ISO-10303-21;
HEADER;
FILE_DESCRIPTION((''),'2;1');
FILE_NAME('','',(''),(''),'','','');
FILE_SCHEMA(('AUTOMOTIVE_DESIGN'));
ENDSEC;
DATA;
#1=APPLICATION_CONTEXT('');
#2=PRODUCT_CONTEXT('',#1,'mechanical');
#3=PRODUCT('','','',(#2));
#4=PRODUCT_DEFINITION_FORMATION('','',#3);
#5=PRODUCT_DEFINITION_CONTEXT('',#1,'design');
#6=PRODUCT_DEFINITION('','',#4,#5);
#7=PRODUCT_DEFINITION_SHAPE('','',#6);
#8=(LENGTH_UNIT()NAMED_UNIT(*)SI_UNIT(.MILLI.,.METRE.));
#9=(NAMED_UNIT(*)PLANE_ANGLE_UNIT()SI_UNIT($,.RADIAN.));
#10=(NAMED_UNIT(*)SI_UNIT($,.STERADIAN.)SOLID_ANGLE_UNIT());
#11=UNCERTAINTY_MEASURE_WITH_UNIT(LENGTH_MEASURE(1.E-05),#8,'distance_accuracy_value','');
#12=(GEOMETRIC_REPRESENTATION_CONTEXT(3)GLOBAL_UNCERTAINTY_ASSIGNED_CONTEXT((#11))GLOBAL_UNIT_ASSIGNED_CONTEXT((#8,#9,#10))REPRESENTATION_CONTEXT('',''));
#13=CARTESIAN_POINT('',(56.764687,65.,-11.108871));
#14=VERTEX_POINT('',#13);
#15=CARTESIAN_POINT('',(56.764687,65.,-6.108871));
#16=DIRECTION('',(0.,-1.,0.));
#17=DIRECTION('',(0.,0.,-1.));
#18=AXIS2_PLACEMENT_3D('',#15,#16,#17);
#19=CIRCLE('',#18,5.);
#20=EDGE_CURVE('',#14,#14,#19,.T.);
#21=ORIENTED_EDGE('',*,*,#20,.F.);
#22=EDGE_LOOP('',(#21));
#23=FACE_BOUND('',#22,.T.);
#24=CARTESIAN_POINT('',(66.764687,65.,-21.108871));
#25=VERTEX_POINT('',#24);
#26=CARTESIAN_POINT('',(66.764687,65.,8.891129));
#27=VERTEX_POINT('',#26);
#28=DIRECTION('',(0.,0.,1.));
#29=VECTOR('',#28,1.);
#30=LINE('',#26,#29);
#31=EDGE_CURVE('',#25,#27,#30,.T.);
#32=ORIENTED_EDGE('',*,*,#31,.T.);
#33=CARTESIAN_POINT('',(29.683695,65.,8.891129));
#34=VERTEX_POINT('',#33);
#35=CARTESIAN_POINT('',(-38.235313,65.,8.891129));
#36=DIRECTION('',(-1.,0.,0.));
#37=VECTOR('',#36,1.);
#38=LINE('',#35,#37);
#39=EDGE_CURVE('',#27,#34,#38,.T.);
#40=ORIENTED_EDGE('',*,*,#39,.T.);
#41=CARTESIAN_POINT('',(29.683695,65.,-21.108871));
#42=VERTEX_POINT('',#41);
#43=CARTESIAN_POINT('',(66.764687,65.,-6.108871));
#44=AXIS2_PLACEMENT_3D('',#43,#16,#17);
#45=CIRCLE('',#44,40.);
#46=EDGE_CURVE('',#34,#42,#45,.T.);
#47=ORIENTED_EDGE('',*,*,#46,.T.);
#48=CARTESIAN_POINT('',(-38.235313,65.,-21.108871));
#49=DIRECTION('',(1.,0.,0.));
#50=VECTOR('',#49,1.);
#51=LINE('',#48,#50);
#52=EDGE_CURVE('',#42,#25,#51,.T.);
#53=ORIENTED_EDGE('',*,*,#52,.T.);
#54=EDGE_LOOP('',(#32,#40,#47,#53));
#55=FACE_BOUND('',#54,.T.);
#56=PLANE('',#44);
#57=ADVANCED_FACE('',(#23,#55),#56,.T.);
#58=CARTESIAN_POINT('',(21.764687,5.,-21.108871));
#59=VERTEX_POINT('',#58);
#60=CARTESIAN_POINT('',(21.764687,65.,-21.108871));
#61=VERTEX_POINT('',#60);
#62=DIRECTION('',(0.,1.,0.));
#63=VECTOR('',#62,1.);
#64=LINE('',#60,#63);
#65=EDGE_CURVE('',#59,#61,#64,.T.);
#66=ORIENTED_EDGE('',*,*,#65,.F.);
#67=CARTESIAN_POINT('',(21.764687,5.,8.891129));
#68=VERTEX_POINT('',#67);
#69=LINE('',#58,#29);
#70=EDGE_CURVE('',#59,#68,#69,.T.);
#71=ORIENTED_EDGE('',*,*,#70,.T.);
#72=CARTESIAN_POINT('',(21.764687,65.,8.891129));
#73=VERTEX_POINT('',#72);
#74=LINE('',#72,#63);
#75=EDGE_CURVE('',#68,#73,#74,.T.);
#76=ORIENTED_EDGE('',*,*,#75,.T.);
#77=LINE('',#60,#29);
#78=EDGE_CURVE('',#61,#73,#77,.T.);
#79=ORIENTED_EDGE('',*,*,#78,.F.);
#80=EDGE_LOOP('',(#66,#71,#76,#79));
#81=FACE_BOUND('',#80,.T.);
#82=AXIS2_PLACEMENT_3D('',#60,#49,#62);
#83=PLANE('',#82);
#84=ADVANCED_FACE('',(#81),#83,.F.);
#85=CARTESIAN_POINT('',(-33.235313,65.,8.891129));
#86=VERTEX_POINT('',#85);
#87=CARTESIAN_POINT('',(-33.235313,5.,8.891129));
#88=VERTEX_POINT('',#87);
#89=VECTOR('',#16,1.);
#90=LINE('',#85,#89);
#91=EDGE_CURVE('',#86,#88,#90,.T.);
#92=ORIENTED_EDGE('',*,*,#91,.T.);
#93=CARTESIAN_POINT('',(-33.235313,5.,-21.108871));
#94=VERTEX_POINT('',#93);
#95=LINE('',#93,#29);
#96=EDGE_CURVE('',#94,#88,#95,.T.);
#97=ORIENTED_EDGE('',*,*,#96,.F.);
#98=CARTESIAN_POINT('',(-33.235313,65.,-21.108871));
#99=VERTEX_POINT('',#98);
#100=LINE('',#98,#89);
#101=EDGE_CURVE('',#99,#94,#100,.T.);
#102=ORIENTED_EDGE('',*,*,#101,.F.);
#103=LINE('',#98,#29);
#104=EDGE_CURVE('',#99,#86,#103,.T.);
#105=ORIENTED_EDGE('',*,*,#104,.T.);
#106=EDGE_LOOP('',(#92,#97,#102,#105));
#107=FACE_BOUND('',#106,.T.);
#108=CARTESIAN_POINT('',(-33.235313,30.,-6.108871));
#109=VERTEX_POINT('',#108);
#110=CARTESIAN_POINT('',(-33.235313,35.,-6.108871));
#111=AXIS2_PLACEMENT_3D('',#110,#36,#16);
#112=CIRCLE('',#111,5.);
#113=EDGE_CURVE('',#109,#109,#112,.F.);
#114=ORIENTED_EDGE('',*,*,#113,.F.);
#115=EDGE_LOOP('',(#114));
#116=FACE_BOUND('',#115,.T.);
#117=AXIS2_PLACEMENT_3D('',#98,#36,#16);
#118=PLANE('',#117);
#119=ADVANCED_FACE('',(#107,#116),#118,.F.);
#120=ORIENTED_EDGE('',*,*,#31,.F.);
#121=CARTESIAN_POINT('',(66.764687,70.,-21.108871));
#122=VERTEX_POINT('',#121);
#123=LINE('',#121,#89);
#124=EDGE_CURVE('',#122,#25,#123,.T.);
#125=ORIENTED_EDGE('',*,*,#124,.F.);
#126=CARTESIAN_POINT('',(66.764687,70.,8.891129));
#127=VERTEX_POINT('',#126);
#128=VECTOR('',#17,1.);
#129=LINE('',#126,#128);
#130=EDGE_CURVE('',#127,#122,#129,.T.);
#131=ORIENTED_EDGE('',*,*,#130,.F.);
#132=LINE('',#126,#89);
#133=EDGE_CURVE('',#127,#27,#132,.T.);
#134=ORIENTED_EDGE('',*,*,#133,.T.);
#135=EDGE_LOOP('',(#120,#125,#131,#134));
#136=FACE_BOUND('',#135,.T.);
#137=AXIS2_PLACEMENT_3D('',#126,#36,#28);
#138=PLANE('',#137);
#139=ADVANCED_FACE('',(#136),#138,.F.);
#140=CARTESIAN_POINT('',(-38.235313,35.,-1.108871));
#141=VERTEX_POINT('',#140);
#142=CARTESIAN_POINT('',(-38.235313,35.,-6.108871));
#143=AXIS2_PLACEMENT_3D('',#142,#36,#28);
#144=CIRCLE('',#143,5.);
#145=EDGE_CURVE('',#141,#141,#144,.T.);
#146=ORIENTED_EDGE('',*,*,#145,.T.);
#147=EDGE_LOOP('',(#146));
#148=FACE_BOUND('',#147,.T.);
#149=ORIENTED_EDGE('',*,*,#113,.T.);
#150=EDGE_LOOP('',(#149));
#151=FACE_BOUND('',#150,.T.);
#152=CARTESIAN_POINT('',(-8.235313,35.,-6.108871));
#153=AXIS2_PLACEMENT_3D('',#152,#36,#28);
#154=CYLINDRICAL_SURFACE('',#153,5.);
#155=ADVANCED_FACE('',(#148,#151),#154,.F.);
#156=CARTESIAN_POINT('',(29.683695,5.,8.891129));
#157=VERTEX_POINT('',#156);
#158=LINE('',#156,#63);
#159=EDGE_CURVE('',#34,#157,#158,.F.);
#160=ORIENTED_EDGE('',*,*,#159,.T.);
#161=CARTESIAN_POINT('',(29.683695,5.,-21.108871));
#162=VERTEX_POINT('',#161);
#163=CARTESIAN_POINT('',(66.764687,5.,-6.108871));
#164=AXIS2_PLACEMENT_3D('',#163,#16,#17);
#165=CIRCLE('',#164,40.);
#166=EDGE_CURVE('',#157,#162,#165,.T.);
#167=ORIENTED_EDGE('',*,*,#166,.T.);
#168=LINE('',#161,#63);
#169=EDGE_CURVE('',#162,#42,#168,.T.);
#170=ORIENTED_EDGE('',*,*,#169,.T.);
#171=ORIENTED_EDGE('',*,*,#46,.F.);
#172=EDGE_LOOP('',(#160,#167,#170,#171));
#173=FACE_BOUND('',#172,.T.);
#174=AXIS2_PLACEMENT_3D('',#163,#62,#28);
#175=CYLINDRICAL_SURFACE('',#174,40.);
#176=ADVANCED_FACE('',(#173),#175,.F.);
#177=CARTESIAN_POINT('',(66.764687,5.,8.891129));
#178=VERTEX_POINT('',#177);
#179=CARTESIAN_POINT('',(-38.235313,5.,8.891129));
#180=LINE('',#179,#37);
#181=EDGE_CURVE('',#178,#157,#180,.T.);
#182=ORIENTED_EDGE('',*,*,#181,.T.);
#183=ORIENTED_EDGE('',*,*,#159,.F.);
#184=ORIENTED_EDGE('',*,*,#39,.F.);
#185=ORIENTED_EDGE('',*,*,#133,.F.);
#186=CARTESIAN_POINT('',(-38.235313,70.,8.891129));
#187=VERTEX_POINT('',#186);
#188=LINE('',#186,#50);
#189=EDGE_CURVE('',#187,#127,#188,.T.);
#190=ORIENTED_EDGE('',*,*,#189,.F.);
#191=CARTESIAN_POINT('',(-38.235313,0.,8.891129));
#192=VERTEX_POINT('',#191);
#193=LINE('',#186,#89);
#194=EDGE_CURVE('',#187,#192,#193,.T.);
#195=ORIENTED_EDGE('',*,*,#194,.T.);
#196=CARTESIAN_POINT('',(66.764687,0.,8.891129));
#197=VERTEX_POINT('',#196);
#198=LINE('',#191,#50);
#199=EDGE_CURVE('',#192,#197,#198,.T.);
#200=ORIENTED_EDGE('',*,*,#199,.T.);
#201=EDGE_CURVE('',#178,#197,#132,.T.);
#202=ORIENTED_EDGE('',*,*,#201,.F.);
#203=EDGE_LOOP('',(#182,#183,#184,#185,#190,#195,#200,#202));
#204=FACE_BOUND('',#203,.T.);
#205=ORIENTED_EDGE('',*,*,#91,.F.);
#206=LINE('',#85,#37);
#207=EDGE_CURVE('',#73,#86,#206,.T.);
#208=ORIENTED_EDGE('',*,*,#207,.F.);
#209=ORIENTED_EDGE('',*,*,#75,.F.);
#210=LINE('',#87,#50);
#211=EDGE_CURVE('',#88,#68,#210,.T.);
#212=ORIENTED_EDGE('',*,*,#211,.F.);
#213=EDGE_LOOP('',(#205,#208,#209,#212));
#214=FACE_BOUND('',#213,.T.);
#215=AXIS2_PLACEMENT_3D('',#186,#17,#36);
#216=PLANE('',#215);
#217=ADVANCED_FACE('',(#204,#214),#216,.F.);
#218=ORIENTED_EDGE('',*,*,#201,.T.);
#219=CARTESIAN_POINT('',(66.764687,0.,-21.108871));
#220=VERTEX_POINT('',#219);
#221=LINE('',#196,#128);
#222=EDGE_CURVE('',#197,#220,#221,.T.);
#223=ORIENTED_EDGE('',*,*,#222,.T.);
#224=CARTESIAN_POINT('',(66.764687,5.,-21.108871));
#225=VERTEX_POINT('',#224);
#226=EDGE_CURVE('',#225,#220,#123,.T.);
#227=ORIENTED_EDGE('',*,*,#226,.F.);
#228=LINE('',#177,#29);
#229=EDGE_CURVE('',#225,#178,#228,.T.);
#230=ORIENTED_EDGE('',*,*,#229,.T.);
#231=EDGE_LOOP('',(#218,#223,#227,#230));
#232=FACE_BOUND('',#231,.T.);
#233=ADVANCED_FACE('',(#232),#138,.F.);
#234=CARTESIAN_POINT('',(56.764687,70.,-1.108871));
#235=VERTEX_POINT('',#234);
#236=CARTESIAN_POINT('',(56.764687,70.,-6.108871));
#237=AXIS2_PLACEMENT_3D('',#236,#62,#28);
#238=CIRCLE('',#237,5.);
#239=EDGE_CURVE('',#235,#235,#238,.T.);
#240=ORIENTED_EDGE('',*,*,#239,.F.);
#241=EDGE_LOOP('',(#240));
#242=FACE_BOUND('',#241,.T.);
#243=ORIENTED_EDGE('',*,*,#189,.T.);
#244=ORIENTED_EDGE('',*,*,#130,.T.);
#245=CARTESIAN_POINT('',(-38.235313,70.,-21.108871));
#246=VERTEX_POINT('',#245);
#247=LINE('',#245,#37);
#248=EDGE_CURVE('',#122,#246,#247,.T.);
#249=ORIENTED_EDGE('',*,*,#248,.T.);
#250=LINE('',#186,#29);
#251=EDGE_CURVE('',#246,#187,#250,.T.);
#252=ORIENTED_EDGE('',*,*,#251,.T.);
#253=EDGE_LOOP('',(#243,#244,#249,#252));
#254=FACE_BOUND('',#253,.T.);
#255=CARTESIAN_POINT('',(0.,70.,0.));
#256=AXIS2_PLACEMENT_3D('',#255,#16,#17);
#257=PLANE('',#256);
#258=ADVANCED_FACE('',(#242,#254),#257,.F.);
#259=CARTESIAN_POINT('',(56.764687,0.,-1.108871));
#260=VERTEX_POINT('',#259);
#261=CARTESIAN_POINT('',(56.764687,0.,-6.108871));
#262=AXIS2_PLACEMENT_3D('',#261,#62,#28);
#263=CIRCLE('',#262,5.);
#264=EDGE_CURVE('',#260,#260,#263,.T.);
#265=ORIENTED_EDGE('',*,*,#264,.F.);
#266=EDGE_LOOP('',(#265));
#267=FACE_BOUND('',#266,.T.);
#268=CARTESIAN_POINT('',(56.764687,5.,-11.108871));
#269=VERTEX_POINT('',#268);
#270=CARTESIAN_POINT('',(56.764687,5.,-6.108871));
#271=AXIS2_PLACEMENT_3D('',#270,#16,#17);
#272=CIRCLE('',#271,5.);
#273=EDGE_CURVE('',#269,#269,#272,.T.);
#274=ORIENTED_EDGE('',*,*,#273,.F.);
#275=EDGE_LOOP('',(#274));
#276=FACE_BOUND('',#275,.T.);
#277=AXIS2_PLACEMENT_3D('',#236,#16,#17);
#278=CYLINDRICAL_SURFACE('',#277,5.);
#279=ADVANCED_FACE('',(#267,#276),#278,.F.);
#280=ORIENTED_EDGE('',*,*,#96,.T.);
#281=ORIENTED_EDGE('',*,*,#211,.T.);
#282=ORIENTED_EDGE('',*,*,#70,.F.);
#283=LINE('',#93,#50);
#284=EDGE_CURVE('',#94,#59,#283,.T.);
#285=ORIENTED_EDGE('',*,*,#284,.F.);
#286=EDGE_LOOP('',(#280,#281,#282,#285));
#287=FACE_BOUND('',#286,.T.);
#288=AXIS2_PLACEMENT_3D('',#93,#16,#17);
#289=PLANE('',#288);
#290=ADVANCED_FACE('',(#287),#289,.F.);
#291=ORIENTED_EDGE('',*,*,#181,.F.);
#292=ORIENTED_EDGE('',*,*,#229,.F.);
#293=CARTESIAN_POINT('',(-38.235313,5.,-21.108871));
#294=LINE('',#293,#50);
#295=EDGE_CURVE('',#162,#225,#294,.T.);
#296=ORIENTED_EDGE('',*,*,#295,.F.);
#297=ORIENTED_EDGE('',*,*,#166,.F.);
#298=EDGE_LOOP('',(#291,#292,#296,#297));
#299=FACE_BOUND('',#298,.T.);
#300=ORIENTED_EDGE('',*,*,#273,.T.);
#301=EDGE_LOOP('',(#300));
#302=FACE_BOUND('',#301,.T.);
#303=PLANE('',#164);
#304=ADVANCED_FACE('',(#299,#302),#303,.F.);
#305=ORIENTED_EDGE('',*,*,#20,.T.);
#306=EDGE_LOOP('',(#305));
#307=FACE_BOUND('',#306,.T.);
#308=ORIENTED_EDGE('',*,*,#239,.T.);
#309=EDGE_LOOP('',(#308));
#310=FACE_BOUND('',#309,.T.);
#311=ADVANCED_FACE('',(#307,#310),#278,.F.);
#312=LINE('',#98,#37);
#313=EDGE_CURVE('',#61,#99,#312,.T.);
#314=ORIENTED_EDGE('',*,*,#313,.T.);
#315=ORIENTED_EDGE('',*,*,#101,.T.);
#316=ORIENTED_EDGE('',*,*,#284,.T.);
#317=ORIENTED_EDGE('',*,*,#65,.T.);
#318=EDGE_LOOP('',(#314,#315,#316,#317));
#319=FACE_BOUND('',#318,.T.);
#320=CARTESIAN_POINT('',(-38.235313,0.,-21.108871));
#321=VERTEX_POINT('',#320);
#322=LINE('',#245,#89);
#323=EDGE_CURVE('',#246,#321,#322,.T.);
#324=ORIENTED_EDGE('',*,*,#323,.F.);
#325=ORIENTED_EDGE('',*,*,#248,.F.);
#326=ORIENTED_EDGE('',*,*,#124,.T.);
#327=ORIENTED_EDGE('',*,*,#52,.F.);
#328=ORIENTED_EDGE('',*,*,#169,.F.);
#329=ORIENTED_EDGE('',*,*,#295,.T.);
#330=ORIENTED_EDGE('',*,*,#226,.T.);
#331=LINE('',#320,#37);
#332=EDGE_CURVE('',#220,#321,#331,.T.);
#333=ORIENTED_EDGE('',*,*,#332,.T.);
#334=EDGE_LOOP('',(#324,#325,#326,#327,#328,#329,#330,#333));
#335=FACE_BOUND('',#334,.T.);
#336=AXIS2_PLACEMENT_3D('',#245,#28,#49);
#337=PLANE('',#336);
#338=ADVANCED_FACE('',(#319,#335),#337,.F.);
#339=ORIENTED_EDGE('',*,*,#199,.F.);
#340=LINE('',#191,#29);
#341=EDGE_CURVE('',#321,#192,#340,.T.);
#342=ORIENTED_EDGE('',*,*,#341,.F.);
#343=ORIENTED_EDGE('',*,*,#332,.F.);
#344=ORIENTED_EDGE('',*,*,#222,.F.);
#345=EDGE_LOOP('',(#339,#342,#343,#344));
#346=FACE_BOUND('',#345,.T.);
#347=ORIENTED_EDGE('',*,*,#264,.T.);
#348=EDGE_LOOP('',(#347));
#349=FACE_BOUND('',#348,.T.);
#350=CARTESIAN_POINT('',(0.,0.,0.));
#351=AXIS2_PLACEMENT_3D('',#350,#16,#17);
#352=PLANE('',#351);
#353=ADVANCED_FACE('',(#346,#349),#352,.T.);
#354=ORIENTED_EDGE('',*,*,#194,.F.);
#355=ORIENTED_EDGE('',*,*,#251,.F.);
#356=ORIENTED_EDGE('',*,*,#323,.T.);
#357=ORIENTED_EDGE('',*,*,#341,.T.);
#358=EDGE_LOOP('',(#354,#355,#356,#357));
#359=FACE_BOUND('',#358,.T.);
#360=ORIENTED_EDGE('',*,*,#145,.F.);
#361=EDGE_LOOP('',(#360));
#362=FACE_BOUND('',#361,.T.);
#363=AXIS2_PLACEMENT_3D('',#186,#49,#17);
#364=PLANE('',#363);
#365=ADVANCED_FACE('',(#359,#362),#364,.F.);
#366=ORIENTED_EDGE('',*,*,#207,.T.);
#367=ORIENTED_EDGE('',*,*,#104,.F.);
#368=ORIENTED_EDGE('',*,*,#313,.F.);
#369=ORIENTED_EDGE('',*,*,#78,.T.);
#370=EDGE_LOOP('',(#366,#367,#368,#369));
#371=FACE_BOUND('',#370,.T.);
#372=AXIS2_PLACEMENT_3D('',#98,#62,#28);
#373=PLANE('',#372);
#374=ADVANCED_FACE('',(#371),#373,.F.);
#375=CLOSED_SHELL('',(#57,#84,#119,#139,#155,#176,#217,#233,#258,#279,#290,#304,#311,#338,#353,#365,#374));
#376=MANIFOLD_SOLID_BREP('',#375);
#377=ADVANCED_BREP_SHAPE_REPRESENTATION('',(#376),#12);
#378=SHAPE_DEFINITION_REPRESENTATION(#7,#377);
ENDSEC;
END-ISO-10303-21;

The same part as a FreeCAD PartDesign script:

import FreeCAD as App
import Part
import Sketcher


def add_polygon(sketch, points):
    """Adds a closed chain of lines whose ends are joined by coincident constraints."""
    first, n = sketch.GeometryCount, len(points)
    for a, b in zip(points, points[1:] + points[:1]):
        sketch.addGeometry(Part.LineSegment(App.Vector(*a, 0), App.Vector(*b, 0)), False)
    for i in range(n):
        sketch.addConstraint(Sketcher.Constraint("Coincident", first + i, 2, first + (i + 1) % n, 1))

doc = App.newDocument("Part")
body = doc.addObject("PartDesign::Body", "Body")

# Sketch on XZ plane
sketch1 = doc.addObject("Sketcher::SketchObject", "Sketch")
body.addObject(sketch1)
sketch1.AttachmentSupport = (doc.XZ_Plane, [""])
sketch1.MapMode = "FlatFace"
add_polygon(sketch1, [(-38, -21), (-38, 9), (67, 9), (67, -21)])  # lines 0-3
sketch1.addGeometry(Part.Circle(App.Vector(57, -6, 0), App.Vector(0, 0, 1), 5), False)  # 4
sketch1.addConstraint([
    Sketcher.Constraint("Vertical", 0),
    Sketcher.Constraint("Horizontal", 1),
    Sketcher.Constraint("Vertical", 2),
    Sketcher.Constraint("Horizontal", 3),
    Sketcher.Constraint("Diameter", 4, 10.0),
    Sketcher.Constraint("DistanceX", 1, 1, 1, 2, 105.0),
    Sketcher.Constraint("DistanceY", 0, 1, 0, 2, 30.0),
    Sketcher.Constraint("DistanceX", 0, 2, 4, 3, 95.0),
    Sketcher.Constraint("DistanceY", 4, 3, 0, 2, 15.0),
    Sketcher.Constraint("DistanceY", 4, 3, -1, 1, 6.108871),
    Sketcher.Constraint("DistanceX", -1, 1, 4, 3, 56.764687),
])
pad1 = doc.addObject("PartDesign::Pad", "Pad")
body.addObject(pad1)
pad1.Profile = sketch1
pad1.Length = 70
pad1.Reversed = True

# Sketch on XZ plane
sketch2 = doc.addObject("Sketcher::SketchObject", "Sketch001")
body.addObject(sketch2)
sketch2.AttachmentSupport = (doc.XZ_Plane, [""])
sketch2.MapMode = "FlatFace"
sketch2.AttachmentOffset = App.Placement(App.Vector(0, 0, -35), App.Rotation())
sketch2.addGeometry(Part.Circle(App.Vector(67, -6, 0), App.Vector(0, 0, 1), 40), False)
sketch2.addConstraint([
    Sketcher.Constraint("Diameter", 0, 80.0),
    Sketcher.Constraint("DistanceY", 0, 3, -1, 1, 6.108871),
    Sketcher.Constraint("DistanceX", -1, 1, 0, 3, 66.764687),
])
pocket1 = doc.addObject("PartDesign::Pocket", "Pocket")
body.addObject(pocket1)
pocket1.Profile = sketch2
pocket1.Type = "TwoLengths"
pocket1.Length = 30
pocket1.Length2 = 30
pocket1.Reversed = True

# Sketch on YZ plane
sketch3 = doc.addObject("Sketcher::SketchObject", "Sketch002")
body.addObject(sketch3)
sketch3.AttachmentSupport = (doc.YZ_Plane, [""])
sketch3.MapMode = "FlatFace"
sketch3.AttachmentOffset = App.Placement(App.Vector(0, 0, -38.235313), App.Rotation())
sketch3.addGeometry(Part.Circle(App.Vector(35, -6, 0), App.Vector(0, 0, 1), 5), False)
sketch3.addConstraint([
    Sketcher.Constraint("Diameter", 0, 10.0),
    Sketcher.Constraint("DistanceX", -1, 1, 0, 3, 35.0),
    Sketcher.Constraint("DistanceY", 0, 3, -1, 1, 6.108871),
])
pocket2 = doc.addObject("PartDesign::Pocket", "Pocket001")
body.addObject(pocket2)
pocket2.Profile = sketch3
pocket2.Length = 30
pocket2.Reversed = True

# Sketch on XY plane
sketch4 = doc.addObject("Sketcher::SketchObject", "Sketch003")
body.addObject(sketch4)
sketch4.AttachmentSupport = (doc.XY_Plane, [""])
sketch4.MapMode = "FlatFace"
sketch4.AttachmentOffset = App.Placement(App.Vector(0, 0, 8.891129), App.Rotation())
add_polygon(sketch4, [(-33, 65), (-33, 5), (22, 5), (22, 65)])  # lines 0-3
sketch4.addConstraint([
    Sketcher.Constraint("Vertical", 0),
    Sketcher.Constraint("Horizontal", 1),
    Sketcher.Constraint("Vertical", 2),
    Sketcher.Constraint("Horizontal", 3),
    Sketcher.Constraint("DistanceX", 1, 1, 1, 2, 55.0),
    Sketcher.Constraint("DistanceY", 0, 2, 0, 1, 60.0),
    Sketcher.Constraint("DistanceY", -1, 1, 0, 2, 5.0),
    Sketcher.Constraint("DistanceX", 0, 2, -1, 1, 33.235313),
])
pocket3 = doc.addObject("PartDesign::Pocket", "Pocket002")
body.addObject(pocket3)
pocket3.Profile = sketch4
pocket3.Length = 30

doc.recompute()
